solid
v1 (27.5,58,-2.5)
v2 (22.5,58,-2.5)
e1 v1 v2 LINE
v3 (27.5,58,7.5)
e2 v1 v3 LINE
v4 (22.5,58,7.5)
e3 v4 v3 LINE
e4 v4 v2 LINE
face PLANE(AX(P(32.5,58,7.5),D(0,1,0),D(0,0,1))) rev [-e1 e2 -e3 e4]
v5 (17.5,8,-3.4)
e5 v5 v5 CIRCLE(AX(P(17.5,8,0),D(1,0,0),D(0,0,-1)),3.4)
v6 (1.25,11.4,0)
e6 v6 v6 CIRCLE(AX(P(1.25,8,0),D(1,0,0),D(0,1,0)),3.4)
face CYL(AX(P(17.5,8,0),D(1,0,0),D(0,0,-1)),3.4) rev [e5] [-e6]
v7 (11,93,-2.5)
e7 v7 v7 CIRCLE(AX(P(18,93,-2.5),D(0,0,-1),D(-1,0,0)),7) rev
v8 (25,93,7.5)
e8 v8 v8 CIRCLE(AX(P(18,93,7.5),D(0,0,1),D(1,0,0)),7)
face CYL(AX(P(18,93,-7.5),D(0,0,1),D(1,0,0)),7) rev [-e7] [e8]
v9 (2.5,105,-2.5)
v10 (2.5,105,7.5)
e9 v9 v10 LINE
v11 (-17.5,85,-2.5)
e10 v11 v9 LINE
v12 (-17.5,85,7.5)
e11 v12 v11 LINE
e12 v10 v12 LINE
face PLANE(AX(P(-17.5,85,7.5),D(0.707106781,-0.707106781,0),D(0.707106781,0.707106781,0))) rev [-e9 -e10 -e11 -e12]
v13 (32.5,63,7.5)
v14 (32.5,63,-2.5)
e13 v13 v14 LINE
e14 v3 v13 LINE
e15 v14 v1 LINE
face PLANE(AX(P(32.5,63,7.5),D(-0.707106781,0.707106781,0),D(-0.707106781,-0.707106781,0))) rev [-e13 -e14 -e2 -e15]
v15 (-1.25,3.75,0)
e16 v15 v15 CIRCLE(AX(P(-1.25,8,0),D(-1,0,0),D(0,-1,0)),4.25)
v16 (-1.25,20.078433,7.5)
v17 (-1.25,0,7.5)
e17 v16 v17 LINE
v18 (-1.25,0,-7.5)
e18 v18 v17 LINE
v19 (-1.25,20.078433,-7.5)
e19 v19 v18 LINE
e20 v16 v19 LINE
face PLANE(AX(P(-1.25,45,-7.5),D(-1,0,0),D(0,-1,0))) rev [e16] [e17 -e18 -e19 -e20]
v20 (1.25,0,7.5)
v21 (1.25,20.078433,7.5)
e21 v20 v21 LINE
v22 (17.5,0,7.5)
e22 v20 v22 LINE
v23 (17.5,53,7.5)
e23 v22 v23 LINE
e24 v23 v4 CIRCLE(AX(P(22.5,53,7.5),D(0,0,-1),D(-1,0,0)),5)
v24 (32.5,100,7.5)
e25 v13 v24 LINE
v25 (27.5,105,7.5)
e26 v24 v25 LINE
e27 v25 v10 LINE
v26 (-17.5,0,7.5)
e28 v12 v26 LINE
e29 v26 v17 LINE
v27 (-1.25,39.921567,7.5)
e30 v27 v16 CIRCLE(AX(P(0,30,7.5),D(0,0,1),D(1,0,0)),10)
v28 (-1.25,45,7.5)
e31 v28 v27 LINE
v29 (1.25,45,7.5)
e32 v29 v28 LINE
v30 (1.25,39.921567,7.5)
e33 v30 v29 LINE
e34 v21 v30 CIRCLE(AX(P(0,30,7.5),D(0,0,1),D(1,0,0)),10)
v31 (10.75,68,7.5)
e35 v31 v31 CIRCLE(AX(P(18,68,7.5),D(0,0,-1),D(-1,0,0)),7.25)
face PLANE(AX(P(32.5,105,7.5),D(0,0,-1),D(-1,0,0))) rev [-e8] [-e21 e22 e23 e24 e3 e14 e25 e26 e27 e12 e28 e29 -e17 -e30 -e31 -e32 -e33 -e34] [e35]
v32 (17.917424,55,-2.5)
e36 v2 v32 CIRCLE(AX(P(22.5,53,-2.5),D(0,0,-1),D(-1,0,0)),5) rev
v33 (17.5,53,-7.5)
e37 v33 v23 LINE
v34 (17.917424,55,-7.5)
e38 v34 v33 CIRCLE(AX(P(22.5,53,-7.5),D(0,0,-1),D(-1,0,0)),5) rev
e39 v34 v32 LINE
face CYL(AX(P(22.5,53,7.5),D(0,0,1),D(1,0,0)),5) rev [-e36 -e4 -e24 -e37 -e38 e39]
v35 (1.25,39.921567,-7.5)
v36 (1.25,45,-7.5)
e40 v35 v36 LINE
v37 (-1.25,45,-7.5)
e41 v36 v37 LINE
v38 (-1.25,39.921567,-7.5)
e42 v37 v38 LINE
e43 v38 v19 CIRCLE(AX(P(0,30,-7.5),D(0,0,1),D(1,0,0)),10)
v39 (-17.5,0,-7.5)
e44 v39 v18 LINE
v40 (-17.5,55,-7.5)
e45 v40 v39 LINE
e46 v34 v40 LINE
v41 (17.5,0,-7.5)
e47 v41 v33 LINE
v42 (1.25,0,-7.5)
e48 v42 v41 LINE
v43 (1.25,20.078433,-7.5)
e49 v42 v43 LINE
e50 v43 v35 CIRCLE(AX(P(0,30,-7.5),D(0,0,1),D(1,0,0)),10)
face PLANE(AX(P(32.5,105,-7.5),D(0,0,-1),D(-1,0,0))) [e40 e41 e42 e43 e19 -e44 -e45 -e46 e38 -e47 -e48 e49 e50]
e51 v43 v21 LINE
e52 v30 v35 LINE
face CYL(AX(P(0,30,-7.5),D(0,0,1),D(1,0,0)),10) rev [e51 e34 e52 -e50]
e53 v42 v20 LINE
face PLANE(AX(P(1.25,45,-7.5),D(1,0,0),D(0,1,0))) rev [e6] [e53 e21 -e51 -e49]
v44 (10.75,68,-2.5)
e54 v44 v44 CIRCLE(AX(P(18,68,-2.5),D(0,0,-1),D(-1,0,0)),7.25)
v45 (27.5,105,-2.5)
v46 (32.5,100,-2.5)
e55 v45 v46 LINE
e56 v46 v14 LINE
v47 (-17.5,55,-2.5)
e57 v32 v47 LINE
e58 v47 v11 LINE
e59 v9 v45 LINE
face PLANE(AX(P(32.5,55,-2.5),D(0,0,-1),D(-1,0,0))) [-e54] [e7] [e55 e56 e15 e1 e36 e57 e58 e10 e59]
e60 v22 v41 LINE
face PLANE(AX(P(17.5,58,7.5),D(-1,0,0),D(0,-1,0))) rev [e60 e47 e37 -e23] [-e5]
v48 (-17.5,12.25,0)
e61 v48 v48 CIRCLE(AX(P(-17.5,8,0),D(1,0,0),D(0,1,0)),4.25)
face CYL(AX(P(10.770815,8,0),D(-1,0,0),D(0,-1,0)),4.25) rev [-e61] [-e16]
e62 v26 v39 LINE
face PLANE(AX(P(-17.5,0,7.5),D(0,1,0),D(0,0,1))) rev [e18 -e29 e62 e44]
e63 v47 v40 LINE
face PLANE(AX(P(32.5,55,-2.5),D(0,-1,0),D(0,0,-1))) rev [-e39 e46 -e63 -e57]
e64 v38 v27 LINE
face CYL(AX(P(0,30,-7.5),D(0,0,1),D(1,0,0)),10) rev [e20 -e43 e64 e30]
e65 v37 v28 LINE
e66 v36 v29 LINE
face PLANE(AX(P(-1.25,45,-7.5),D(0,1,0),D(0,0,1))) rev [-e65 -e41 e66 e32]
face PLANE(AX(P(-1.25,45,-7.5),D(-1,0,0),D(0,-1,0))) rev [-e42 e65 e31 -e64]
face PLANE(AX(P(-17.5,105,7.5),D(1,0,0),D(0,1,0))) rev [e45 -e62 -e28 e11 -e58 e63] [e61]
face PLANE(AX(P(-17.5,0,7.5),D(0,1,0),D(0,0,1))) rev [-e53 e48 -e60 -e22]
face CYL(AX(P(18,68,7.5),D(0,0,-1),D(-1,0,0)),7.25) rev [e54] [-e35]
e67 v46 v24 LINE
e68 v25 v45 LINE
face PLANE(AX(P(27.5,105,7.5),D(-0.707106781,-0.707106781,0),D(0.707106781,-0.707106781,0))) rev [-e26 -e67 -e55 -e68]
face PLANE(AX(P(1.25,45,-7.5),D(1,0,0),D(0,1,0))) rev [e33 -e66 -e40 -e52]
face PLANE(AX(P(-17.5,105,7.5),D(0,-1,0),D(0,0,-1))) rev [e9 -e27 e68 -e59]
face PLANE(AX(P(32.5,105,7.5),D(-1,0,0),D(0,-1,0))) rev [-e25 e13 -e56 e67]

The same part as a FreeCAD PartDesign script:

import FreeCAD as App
import Part
import Sketcher
from FreeCAD import Vector
Q = App.Units.Quantity


def edges_at(feature, points):
    """Names of the edges that pass closest to the given points."""
    edges = feature.Shape.Edges
    near = lambda p: min(range(len(edges)), key=lambda i: edges[i].distToShape(Part.Vertex(*p))[0])
    return sorted({f"Edge{near(p) + 1}" for p in points})

doc = App.newDocument("Part")
body = doc.addObject("PartDesign::Body", "Body")

sketch1 = body.newObject("Sketcher::SketchObject", "Sketch")
sketch1.AttachmentSupport = (doc.getObject("XY_Plane"), [""])
sketch1.MapMode = "FlatFace"
sketch1.addGeometry(Part.LineSegment(Vector(-18, 105, 0), Vector(-18, 0, 0)), False)
sketch1.addGeometry(Part.LineSegment(Vector(-18, 0, 0), Vector(18, 0, 0)), False)
sketch1.addGeometry(Part.LineSegment(Vector(18, 0, 0), Vector(18, 58, 0)), False)
sketch1.addGeometry(Part.LineSegment(Vector(18, 58, 0), Vector(32, 58, 0)), False)
sketch1.addGeometry(Part.LineSegment(Vector(32, 58, 0), Vector(32, 105, 0)), False)
sketch1.addGeometry(Part.LineSegment(Vector(32, 105, 0), Vector(-18, 105, 0)), False)
sketch1.addConstraint(Sketcher.Constraint("Coincident", 0, 2, 1, 1))
sketch1.addConstraint(Sketcher.Constraint("Coincident", 1, 2, 2, 1))
sketch1.addConstraint(Sketcher.Constraint("Coincident", 2, 2, 3, 1))
sketch1.addConstraint(Sketcher.Constraint("Coincident", 3, 2, 4, 1))
sketch1.addConstraint(Sketcher.Constraint("Coincident", 4, 2, 5, 1))
sketch1.addConstraint(Sketcher.Constraint("Coincident", 5, 2, 0, 1))
sketch1.addConstraint(Sketcher.Constraint("Vertical", 0))
sketch1.addConstraint(Sketcher.Constraint("Horizontal", 1))
sketch1.addConstraint(Sketcher.Constraint("Vertical", 2))
sketch1.addConstraint(Sketcher.Constraint("Horizontal", 3))
sketch1.addConstraint(Sketcher.Constraint("Vertical", 4))
sketch1.addConstraint(Sketcher.Constraint("Horizontal", 5))
sketch1.addConstraint(Sketcher.Constraint("Symmetric", 0, 2, 1, 2, -1, 1))
sketch1.addConstraint(Sketcher.Constraint("DistanceX", 1, 1, 1, 2, Q("35 mm")))
sketch1.addConstraint(Sketcher.Constraint("DistanceX", 3, 1, 3, 2, Q("15 mm")))
sketch1.addConstraint(Sketcher.Constraint("DistanceY", 0, 2, 0, 1, Q("105 mm")))
sketch1.addConstraint(Sketcher.Constraint("DistanceY", 2, 1, 2, 2, Q("58 mm")))
pad1 = body.newObject("PartDesign::Pad", "Pad")
pad1.Profile = sketch1
pad1.Length = 15
pad1.Midplane = True

sketch2 = body.newObject("Sketcher::SketchObject", "Sketch001")
sketch2.AttachmentSupport = (doc.getObject("XY_Plane"), [""])
sketch2.MapMode = "FlatFace"
sketch2.AttachmentOffset = App.Placement(Vector(0, 0, 7.5), App.Rotation())
sketch2.addGeometry(Part.Circle(Vector(0, 30, 0), Vector(0, 0, 1), 10), False)
sketch2.addConstraint(Sketcher.Constraint("PointOnObject", 0, 3, -2))
sketch2.addConstraint(Sketcher.Constraint("Diameter", 0, Q("20 mm")))
sketch2.addConstraint(Sketcher.Constraint("DistanceY", -1, 1, 0, 3, Q("30 mm")))
pocket1 = body.newObject("PartDesign::Pocket", "Pocket")
pocket1.Profile = sketch2
pocket1.Type = "ThroughAll"

sketch3 = body.newObject("Sketcher::SketchObject", "Sketch002")
sketch3.AttachmentSupport = (doc.getObject("XY_Plane"), [""])
sketch3.MapMode = "FlatFace"
sketch3.AttachmentOffset = App.Placement(Vector(0, 0, 7.5), App.Rotation())
sketch3.addGeometry(Part.LineSegment(Vector(-1.2, 45, 0), Vector(-1.2, 0, 0)), False)
sketch3.addGeometry(Part.LineSegment(Vector(-1.2, 0, 0), Vector(1.2, 0, 0)), False)
sketch3.addGeometry(Part.LineSegment(Vector(1.2, 0, 0), Vector(1.2, 45, 0)), False)
sketch3.addGeometry(Part.LineSegment(Vector(1.2, 45, 0), Vector(-1.2, 45, 0)), False)
sketch3.addConstraint(Sketcher.Constraint("Coincident", 0, 2, 1, 1))
sketch3.addConstraint(Sketcher.Constraint("Coincident", 1, 2, 2, 1))
sketch3.addConstraint(Sketcher.Constraint("Coincident", 2, 2, 3, 1))
sketch3.addConstraint(Sketcher.Constraint("Coincident", 3, 2, 0, 1))
sketch3.addConstraint(Sketcher.Constraint("Vertical", 0))
sketch3.addConstraint(Sketcher.Constraint("Horizontal", 1))
sketch3.addConstraint(Sketcher.Constraint("Vertical", 2))
sketch3.addConstraint(Sketcher.Constraint("Horizontal", 3))
sketch3.addConstraint(Sketcher.Constraint("Symmetric", 0, 2, 1, 2, -1, 1))
sketch3.addConstraint(Sketcher.Constraint("DistanceY", 0, 2, 0, 1, Q("45 mm")))
sketch3.addConstraint(Sketcher.Constraint("DistanceX", 1, 1, 1, 2, Q("2.5 mm")))
pocket2 = body.newObject("PartDesign::Pocket", "Pocket001")
pocket2.Profile = sketch3
pocket2.Type = "ThroughAll"
doc.recompute()

fillet = body.newObject("PartDesign::Fillet", "Fillet")
fillet.Base = (pocket2, edges_at(pocket2, [(17.5, 58, 0)]))
fillet.Radius = 5

sketch4 = body.newObject("Sketcher::SketchObject", "Sketch003")
sketch4.AttachmentSupport = (doc.getObject("YZ_Plane"), [""])
sketch4.MapMode = "FlatFace"
sketch4.AttachmentOffset = App.Placement(Vector(0, 0, -17.5), App.Rotation())
sketch4.addGeometry(Part.Circle(Vector(8, 0, 0), Vector(0, 0, 1), 4.2), False)
sketch4.addConstraint(Sketcher.Constraint("PointOnObject", 0, 3, -1))
sketch4.addConstraint(Sketcher.Constraint("Diameter", 0, Q("8.5 mm")))
sketch4.addConstraint(Sketcher.Constraint("DistanceX", -1, 1, 0, 3, Q("8 mm")))
pocket3 = body.newObject("PartDesign::Pocket", "Pocket002")
pocket3.Profile = sketch4
pocket3.Length = 16.25
pocket3.Reversed = True

sketch5 = body.newObject("Sketcher::SketchObject", "Sketch004")
sketch5.AttachmentSupport = (doc.getObject("YZ_Plane"), [""])
sketch5.MapMode = "FlatFace"
sketch5.AttachmentOffset = App.Placement(Vector(0, 0, 17.5), App.Rotation())
sketch5.addGeometry(Part.Circle(Vector(8, 0, 0), Vector(0, 0, 1), 3.4), False)
sketch5.addConstraint(Sketcher.Constraint("PointOnObject", 0, 3, -1))
sketch5.addConstraint(Sketcher.Constraint("Diameter", 0, Q("6.8 mm")))
sketch5.addConstraint(Sketcher.Constraint("DistanceX", -1, 1, 0, 3, Q("8 mm")))
doc.recompute()
hole = body.newObject("PartDesign::Hole", "Hole")
hole.Profile = sketch5
hole.ThreadType = "None"
hole.Diameter = 6.8
hole.DepthType = "ThroughAll"

sketch6 = body.newObject("Sketcher::SketchObject", "Sketch005")
sketch6.AttachmentSupport = (doc.getObject("XY_Plane"), [""])
sketch6.MapMode = "FlatFace"
sketch6.AttachmentOffset = App.Placement(Vector(0, 0, 7.5), App.Rotation())
sketch6.addGeometry(Part.Circle(Vector(18, 93, 0), Vector(0, 0, 1), 7), False)
sketch6.addConstraint(Sketcher.Constraint("Diameter", 0, Q("14 mm")))
sketch6.addConstraint(Sketcher.Constraint("DistanceX", -1, 1, 0, 3, Q("18 mm")))
sketch6.addConstraint(Sketcher.Constraint("DistanceY", -1, 1, 0, 3, Q("93 mm")))
pocket4 = body.newObject("PartDesign::Pocket", "Pocket003")
pocket4.Profile = sketch6
pocket4.Type = "ThroughAll"

sketch7 = body.newObject("Sketcher::SketchObject", "Sketch006")
sketch7.AttachmentSupport = (doc.getObject("XY_Plane"), [""])
sketch7.MapMode = "FlatFace"
sketch7.AttachmentOffset = App.Placement(Vector(0, 0, -7.5), App.Rotation())
sketch7.addGeometry(Part.LineSegment(Vector(32, 105, 0), Vector(32, 55, 0)), False)
sketch7.addGeometry(Part.LineSegment(Vector(32, 55, 0), Vector(-18, 55, 0)), False)
sketch7.addGeometry(Part.LineSegment(Vector(-18, 55, 0), Vector(-18, 105, 0)), False)
sketch7.addGeometry(Part.LineSegment(Vector(-18, 105, 0), Vector(32, 105, 0)), False)
sketch7.addConstraint(Sketcher.Constraint("Coincident", 0, 2, 1, 1))
sketch7.addConstraint(Sketcher.Constraint("Coincident", 1, 2, 2, 1))
sketch7.addConstraint(Sketcher.Constraint("Coincident", 2, 2, 3, 1))
sketch7.addConstraint(Sketcher.Constraint("Coincident", 3, 2, 0, 1))
sketch7.addConstraint(Sketcher.Constraint("Vertical", 0))
sketch7.addConstraint(Sketcher.Constraint("Horizontal", 1))
sketch7.addConstraint(Sketcher.Constraint("Vertical", 2))
sketch7.addConstraint(Sketcher.Constraint("Horizontal", 3))
sketch7.addConstraint(Sketcher.Constraint("Equal", 3, 0))
sketch7.addConstraint(Sketcher.Constraint("DistanceX", 1, 2, 1, 1, Q("50 mm")))
sketch7.addConstraint(Sketcher.Constraint("DistanceY", -1, 1, 0, 2, Q("55 mm")))
sketch7.addConstraint(Sketcher.Constraint("DistanceX", -1, 1, 0, 2, Q("32.5 mm")))
pocket5 = body.newObject("PartDesign::Pocket", "Pocket004")
pocket5.Profile = sketch7
pocket5.Length = 5
pocket5.Reversed = True
doc.recompute()

chamfer = body.newObject("PartDesign::Chamfer", "Chamfer")
chamfer.Base = (pocket5, edges_at(pocket5, [(32.5, 105, 2.5), (32.5, 58, 2.5)]))
chamfer.Size = 5
doc.recompute()

chamfer2 = body.newObject("PartDesign::Chamfer", "Chamfer001")
chamfer2.Base = (chamfer, edges_at(chamfer, [(-17.5, 105, 2.5)]))
chamfer2.Size = 20

sketch8 = body.newObject("Sketcher::SketchObject", "Sketch007")
sketch8.AttachmentSupport = (doc.getObject("XY_Plane"), [""])
sketch8.MapMode = "FlatFace"
sketch8.AttachmentOffset = App.Placement(Vector(0, 0, -2.5), App.Rotation())
sketch8.addGeometry(Part.Circle(Vector(18, 68, 0), Vector(0, 0, 1), 7), False)
sketch8.addConstraint(Sketcher.Constraint("Diameter", 0, Q("14.5 mm")))
sketch8.addConstraint(Sketcher.Constraint("DistanceX", -1, 1, 0, 3, Q("18 mm")))
sketch8.addConstraint(Sketcher.Constraint("DistanceY", -1, 1, 0, 3, Q("68 mm")))
pocket6 = body.newObject("PartDesign::Pocket", "Pocket005")
pocket6.Profile = sketch8
pocket6.Type = "ThroughAll"
pocket6.Reversed = True

doc.recompute()
